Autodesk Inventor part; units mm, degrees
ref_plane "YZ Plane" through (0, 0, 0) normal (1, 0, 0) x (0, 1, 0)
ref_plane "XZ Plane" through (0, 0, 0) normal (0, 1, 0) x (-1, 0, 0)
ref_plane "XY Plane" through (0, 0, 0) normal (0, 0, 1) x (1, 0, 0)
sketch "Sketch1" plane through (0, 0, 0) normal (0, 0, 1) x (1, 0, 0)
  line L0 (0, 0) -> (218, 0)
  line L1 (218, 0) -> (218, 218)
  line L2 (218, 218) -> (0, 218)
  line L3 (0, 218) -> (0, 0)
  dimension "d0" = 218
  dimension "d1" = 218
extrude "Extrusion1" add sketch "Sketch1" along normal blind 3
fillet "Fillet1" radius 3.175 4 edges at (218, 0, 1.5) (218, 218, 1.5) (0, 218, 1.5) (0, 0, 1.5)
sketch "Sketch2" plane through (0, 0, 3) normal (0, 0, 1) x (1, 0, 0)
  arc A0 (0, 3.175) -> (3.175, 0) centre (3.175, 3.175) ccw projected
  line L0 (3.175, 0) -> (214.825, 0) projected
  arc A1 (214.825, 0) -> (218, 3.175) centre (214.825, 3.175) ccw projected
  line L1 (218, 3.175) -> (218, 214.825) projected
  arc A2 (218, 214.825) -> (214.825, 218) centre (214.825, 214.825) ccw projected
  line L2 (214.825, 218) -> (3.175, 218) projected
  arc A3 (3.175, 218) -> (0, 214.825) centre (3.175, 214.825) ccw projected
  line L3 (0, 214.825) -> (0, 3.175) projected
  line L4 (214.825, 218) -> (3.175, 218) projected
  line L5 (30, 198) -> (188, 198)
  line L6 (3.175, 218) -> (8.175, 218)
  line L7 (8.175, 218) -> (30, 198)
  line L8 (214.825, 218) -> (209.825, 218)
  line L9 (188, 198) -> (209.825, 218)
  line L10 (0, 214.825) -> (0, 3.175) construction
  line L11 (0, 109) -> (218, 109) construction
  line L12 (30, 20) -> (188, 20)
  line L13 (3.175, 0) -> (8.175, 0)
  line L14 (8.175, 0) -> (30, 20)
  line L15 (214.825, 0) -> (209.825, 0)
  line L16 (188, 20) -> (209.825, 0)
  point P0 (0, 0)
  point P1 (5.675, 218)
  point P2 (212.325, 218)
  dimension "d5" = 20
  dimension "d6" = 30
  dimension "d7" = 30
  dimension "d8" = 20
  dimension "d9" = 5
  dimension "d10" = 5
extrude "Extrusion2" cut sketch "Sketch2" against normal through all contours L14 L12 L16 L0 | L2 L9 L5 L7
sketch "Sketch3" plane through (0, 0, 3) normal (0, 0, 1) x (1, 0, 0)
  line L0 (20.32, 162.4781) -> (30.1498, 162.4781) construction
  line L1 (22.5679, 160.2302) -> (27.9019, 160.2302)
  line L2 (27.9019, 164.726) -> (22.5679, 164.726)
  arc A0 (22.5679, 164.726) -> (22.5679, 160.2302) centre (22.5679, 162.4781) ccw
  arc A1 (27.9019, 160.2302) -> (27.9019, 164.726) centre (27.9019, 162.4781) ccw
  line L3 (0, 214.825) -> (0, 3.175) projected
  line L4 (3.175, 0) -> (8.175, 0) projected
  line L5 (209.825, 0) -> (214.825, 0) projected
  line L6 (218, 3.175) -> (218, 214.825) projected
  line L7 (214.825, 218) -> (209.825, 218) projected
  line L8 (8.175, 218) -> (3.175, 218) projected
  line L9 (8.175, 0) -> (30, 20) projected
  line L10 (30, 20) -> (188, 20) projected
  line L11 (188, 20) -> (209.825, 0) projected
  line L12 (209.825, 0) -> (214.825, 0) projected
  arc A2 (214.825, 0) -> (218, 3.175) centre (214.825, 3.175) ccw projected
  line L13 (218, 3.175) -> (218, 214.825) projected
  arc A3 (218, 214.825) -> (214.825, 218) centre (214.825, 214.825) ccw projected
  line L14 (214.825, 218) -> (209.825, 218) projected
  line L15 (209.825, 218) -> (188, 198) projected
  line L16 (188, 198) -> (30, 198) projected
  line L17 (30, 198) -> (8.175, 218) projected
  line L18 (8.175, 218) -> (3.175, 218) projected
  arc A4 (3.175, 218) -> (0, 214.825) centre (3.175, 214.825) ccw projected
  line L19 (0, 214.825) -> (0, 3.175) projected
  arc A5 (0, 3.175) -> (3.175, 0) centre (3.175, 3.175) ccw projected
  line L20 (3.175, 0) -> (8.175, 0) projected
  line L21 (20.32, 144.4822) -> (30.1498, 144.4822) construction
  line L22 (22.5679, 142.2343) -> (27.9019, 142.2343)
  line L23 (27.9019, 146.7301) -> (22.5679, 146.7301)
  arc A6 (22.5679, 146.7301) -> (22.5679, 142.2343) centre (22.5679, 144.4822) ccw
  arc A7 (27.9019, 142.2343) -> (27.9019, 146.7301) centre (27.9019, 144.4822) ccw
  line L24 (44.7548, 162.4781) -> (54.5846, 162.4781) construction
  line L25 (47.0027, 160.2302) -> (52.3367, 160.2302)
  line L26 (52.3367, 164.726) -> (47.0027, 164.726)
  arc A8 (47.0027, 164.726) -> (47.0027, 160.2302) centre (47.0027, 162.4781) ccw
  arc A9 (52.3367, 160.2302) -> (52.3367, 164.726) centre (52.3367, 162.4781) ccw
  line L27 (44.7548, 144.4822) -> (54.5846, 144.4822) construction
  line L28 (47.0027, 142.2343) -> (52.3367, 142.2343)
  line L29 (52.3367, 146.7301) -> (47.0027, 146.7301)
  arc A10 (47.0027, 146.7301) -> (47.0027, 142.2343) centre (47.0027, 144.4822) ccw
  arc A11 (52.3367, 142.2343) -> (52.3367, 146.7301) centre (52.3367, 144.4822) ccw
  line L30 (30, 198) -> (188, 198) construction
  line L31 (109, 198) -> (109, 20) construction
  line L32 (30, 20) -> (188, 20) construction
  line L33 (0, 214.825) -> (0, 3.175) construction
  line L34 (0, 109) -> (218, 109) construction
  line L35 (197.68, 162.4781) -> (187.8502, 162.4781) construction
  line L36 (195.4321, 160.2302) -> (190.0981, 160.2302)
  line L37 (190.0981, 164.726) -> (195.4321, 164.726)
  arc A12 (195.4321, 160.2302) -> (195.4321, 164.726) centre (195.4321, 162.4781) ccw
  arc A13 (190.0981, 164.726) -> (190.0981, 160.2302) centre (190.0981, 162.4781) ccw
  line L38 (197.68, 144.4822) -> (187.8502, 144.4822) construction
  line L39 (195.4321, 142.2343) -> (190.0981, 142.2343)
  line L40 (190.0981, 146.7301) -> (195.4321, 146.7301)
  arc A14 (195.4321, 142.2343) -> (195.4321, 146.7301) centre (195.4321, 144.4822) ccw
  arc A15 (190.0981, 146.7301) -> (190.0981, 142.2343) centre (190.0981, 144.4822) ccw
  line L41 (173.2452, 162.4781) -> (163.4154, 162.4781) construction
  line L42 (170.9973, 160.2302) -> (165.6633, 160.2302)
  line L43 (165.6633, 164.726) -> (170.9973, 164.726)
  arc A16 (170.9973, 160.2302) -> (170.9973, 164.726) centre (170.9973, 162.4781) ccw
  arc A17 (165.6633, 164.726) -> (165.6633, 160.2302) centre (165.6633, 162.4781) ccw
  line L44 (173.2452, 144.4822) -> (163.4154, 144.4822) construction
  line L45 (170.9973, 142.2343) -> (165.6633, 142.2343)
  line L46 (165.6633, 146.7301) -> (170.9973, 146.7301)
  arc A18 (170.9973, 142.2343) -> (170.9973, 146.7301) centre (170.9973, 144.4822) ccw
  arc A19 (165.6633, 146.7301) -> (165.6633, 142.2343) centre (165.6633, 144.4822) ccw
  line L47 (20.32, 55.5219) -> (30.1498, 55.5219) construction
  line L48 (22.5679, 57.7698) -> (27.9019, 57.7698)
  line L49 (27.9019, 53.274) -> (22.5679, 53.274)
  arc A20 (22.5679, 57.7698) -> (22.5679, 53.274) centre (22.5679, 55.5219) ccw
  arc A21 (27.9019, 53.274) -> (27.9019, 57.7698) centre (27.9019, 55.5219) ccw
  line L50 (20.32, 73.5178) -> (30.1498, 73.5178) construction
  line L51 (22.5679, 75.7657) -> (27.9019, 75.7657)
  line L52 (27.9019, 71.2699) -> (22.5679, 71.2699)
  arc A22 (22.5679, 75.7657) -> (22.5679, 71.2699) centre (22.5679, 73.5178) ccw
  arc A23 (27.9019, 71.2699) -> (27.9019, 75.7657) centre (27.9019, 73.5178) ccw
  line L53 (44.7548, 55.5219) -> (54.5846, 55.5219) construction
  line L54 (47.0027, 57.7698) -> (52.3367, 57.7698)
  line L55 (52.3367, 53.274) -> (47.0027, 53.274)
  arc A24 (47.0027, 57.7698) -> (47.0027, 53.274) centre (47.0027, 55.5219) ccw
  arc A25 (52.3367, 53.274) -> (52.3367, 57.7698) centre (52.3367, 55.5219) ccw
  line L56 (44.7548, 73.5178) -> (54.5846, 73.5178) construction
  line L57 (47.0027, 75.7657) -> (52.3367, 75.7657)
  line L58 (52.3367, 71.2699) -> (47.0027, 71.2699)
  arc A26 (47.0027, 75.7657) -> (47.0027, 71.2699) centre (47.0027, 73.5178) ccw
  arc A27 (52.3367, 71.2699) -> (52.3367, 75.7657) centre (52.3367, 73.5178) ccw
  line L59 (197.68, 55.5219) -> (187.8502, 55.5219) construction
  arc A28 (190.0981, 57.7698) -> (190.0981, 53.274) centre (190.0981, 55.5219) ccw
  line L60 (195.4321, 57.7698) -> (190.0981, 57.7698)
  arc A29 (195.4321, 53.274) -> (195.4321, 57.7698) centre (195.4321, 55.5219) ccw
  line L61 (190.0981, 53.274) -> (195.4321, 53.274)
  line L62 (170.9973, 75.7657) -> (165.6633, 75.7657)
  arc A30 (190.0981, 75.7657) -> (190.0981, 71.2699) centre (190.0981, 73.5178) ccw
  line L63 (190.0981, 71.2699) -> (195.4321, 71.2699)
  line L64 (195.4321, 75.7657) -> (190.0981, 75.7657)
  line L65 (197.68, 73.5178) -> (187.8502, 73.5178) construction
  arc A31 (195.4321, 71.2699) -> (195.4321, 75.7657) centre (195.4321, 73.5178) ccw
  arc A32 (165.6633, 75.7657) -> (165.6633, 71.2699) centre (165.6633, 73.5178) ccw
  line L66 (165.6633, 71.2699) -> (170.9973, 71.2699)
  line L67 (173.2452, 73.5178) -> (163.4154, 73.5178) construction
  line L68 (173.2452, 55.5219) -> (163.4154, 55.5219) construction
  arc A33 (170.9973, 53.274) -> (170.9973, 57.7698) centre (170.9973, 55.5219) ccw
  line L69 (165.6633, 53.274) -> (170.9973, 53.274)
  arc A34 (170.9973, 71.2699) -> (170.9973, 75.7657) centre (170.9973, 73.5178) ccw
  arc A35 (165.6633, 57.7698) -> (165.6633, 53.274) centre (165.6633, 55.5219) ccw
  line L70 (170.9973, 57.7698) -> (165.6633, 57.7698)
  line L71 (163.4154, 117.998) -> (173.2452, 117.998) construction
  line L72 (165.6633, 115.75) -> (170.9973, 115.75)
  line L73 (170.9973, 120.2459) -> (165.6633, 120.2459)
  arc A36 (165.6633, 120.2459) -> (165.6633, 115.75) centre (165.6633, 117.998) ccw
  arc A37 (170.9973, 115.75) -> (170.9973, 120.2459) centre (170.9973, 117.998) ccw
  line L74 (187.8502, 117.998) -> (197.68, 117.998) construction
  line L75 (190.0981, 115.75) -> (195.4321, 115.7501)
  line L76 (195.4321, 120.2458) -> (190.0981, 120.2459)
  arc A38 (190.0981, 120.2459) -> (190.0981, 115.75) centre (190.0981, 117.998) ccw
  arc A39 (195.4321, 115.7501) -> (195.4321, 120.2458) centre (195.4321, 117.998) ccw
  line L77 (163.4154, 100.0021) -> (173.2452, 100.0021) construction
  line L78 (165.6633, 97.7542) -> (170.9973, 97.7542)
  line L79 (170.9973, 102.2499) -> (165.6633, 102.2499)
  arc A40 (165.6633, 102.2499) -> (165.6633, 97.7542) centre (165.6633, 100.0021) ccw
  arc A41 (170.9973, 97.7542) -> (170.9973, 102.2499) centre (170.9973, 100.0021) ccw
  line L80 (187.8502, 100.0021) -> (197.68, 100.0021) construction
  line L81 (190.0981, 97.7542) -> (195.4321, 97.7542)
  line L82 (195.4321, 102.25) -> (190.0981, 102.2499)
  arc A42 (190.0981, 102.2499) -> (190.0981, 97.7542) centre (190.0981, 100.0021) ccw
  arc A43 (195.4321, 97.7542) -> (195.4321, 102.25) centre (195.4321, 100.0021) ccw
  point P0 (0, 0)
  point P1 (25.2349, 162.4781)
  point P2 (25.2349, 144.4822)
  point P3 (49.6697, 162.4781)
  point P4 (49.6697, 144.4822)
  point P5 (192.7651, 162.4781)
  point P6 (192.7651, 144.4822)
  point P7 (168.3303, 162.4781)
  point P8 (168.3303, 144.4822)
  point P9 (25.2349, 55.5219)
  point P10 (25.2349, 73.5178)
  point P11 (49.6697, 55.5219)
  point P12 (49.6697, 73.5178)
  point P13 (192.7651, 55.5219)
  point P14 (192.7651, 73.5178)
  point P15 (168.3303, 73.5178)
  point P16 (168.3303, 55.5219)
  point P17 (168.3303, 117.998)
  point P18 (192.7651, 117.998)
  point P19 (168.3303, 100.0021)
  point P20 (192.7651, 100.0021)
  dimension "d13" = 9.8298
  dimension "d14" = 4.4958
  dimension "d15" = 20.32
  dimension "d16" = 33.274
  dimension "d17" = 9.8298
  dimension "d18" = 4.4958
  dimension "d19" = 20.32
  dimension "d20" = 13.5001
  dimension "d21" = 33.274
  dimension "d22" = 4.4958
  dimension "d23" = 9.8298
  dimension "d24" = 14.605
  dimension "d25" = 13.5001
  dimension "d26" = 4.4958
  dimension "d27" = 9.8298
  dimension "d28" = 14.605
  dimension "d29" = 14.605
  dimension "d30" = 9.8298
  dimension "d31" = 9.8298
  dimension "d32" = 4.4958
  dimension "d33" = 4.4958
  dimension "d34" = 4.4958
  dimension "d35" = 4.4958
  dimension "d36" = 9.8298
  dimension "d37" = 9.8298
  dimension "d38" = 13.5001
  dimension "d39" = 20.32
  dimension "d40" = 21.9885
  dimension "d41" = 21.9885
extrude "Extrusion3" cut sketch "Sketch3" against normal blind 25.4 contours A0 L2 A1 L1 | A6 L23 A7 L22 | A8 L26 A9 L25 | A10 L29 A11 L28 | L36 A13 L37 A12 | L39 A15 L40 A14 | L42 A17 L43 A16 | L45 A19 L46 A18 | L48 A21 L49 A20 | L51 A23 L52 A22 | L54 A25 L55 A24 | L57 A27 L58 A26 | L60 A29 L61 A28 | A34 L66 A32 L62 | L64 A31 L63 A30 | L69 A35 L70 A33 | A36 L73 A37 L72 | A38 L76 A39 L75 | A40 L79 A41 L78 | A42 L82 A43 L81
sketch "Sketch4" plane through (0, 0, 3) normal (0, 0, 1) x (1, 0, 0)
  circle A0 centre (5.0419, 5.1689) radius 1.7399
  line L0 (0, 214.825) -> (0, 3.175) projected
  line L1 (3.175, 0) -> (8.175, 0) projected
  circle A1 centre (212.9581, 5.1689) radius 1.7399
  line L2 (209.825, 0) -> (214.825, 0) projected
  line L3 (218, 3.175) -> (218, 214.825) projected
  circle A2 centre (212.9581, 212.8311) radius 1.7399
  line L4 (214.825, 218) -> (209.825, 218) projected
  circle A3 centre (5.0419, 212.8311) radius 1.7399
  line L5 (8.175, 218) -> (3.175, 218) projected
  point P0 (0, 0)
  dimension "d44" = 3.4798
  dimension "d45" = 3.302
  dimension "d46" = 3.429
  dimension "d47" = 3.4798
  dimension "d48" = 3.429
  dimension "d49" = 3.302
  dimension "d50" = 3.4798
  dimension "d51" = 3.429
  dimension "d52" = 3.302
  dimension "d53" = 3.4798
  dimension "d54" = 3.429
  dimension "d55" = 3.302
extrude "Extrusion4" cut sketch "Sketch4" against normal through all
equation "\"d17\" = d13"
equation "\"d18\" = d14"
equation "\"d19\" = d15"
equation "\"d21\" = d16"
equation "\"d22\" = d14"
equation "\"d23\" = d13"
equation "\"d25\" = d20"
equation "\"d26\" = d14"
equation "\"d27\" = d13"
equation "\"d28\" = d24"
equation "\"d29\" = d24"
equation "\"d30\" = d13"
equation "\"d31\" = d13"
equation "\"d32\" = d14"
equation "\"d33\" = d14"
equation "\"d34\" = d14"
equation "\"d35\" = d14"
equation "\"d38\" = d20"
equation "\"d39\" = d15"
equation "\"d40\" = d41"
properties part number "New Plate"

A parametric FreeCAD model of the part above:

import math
import FreeCAD as App
import Part
import Sketcher
from FreeCAD import Vector
Q = App.Units.Quantity


def edges_at(feature, points):
    """Names of the edges that pass closest to the given points."""
    edges = feature.Shape.Edges
    near = lambda p: min(range(len(edges)), key=lambda i: edges[i].distToShape(Part.Vertex(*p))[0])
    return sorted({f"Edge{near(p) + 1}" for p in points})

doc = App.newDocument("Part")
params = doc.addObject("Spreadsheet::Sheet", "Params")
for row, (alias, value) in enumerate([
    ("pad1_length", "0.1181102 in"),
    ("fillet_radius", "0.125 in"),
    ("sketch3_width", "0.21 in"),
    ("pocket2_length", "1 in"),
    ("sketch4_diameter", "0.137 in"),
], start=1):
    params.set(f"A{row}", alias)
    params.set(f"B{row}", "=" + value)
    params.setAlias(f"B{row}", alias)

body = doc.addObject("PartDesign::Body", "Body")

sketch1 = body.newObject("Sketcher::SketchObject", "Sketch")
sketch1.AttachmentSupport = (doc.getObject("XY_Plane"), [""])
sketch1.MapMode = "FlatFace"
sketch1.addGeometry(Part.LineSegment(Vector(0, 218, 0), Vector(0, 0, 0)), False)
sketch1.addGeometry(Part.LineSegment(Vector(0, 0, 0), Vector(218, 0, 0)), False)
sketch1.addGeometry(Part.LineSegment(Vector(218, 0, 0), Vector(218, 218, 0)), False)
sketch1.addGeometry(Part.LineSegment(Vector(218, 218, 0), Vector(0, 218, 0)), False)
sketch1.addConstraint(Sketcher.Constraint("Coincident", 0, 2, 1, 1))
sketch1.addConstraint(Sketcher.Constraint("Coincident", 1, 2, 2, 1))
sketch1.addConstraint(Sketcher.Constraint("Coincident", 2, 2, 3, 1))
sketch1.addConstraint(Sketcher.Constraint("Coincident", 3, 2, 0, 1))
sketch1.addConstraint(Sketcher.Constraint("Vertical", 0))
sketch1.addConstraint(Sketcher.Constraint("Horizontal", 1))
sketch1.addConstraint(Sketcher.Constraint("Vertical", 2))
sketch1.addConstraint(Sketcher.Constraint("Horizontal", 3))
sketch1.addConstraint(Sketcher.Constraint("Coincident", 0, 2, -1, 1))
sketch1.addConstraint(Sketcher.Constraint("Equal", 3, 0))
sketch1.addConstraint(Sketcher.Constraint("DistanceX", 1, 1, 1, 2, 218.0))
pad1 = body.newObject("PartDesign::Pad", "Pad")
pad1.Profile = sketch1
pad1.setExpression("Length", "Params.pad1_length")
doc.recompute()

fillet = body.newObject("PartDesign::Fillet", "Fillet")
fillet.Base = (pad1, edges_at(pad1, [
    (218, 0, 1.5),
    (218, 218, 1.5),
    (0, 218, 1.5),
    (0, 0, 1.5),
]))
fillet.setExpression("Radius", "Params.fillet_radius")

sketch2 = body.newObject("Sketcher::SketchObject", "Sketch001")
sketch2.AttachmentSupport = (doc.getObject("XY_Plane"), [""])
sketch2.MapMode = "FlatFace"
sketch2.AttachmentOffset = App.Placement(Vector(0, 0, 0.1181102 * 25.4), App.Rotation())
sketch2.addGeometry(Part.LineSegment(Vector(30, 20, 0), Vector(8.175, 0, 0)), False)
sketch2.addGeometry(Part.LineSegment(Vector(8.175, 0, 0), Vector(209.825, 0, 0)), False)
sketch2.addGeometry(Part.LineSegment(Vector(209.825, 0, 0), Vector(188, 20, 0)), False)
sketch2.addGeometry(Part.LineSegment(Vector(188, 20, 0), Vector(30, 20, 0)), False)
sketch2.addGeometry(Part.LineSegment(Vector(209.825, 218, 0), Vector(8.175, 218, 0)), False)
sketch2.addGeometry(Part.LineSegment(Vector(8.175, 218, 0), Vector(30, 198, 0)), False)
sketch2.addGeometry(Part.LineSegment(Vector(30, 198, 0), Vector(188, 198, 0)), False)
sketch2.addGeometry(Part.LineSegment(Vector(188, 198, 0), Vector(209.825, 218, 0)), False)
sketch2.addConstraint(Sketcher.Constraint("Coincident", 0, 2, 1, 1))
sketch2.addConstraint(Sketcher.Constraint("Coincident", 1, 2, 2, 1))
sketch2.addConstraint(Sketcher.Constraint("Coincident", 2, 2, 3, 1))
sketch2.addConstraint(Sketcher.Constraint("Coincident", 3, 2, 0, 1))
sketch2.addConstraint(Sketcher.Constraint("Coincident", 4, 2, 5, 1))
sketch2.addConstraint(Sketcher.Constraint("Coincident", 5, 2, 6, 1))
sketch2.addConstraint(Sketcher.Constraint("Coincident", 6, 2, 7, 1))
sketch2.addConstraint(Sketcher.Constraint("Coincident", 7, 2, 4, 1))
sketch2.addConstraint(Sketcher.Constraint("Horizontal", 1))
sketch2.addConstraint(Sketcher.Constraint("Horizontal", 3))
sketch2.addConstraint(Sketcher.Constraint("Horizontal", 4))
sketch2.addConstraint(Sketcher.Constraint("Horizontal", 6))
sketch2.addConstraint(Sketcher.Constraint("PointOnObject", 0, 2, -1))
sketch2.addConstraint(Sketcher.Constraint("Parallel", 2, 5))
sketch2.addConstraint(Sketcher.Constraint("Parallel", 0, 7))
sketch2.addConstraint(Sketcher.Constraint("Vertical", 0, 2, 4, 2))
sketch2.addConstraint(Sketcher.Constraint("Vertical", 3, 2, 5, 2))
sketch2.addConstraint(Sketcher.Constraint("Vertical", 2, 2, 6, 2))
sketch2.addConstraint(Sketcher.Constraint("Vertical", 1, 2, 7, 2))
sketch2.addConstraint(Sketcher.Constraint("DistanceY", -1, 1, 2, 2, Q("0.7874 in")))
sketch2.addConstraint(Sketcher.Constraint("DistanceX", -1, 1, 3, 2, Q("1.1811 in")))
sketch2.addConstraint(Sketcher.Constraint("DistanceX", 1, 1, 1, 2, 201.65))
sketch2.addConstraint(Sketcher.Constraint("DistanceX", 3, 2, 3, 1, 158.0))
sketch2.addConstraint(Sketcher.Constraint("DistanceY", -1, 1, 4, 2, 218.0))
pocket1 = body.newObject("PartDesign::Pocket", "Pocket")
pocket1.Profile = sketch2
pocket1.Type = "ThroughAll"

sketch3 = body.newObject("Sketcher::SketchObject", "Sketch002")
sketch3.AttachmentSupport = (doc.getObject("XY_Plane"), [""])
sketch3.MapMode = "FlatFace"
sketch3.AttachmentOffset = App.Placement(Vector(0, 0, 0.1181102 * 25.4), App.Rotation())
sketch3.addGeometry(Part.ArcOfCircle(Part.Circle(Vector(22.5679, 162.4781, 0), Vector(0, 0, 1), 2.2479), math.radians(90), math.radians(270)), False)
sketch3.addGeometry(Part.LineSegment(Vector(22.5679, 160.2302, 0), Vector(27.9019, 160.2302, 0)), False)
sketch3.addGeometry(Part.ArcOfCircle(Part.Circle(Vector(27.9019, 162.4781, 0), Vector(0, 0, 1), 2.2479), math.radians(-90), math.radians(90)), False)
sketch3.addGeometry(Part.LineSegment(Vector(27.9019, 164.726, 0), Vector(22.5679, 164.726, 0)), False)
sketch3.addGeometry(Part.ArcOfCircle(Part.Circle(Vector(22.5679, 144.4822, 0), Vector(0, 0, 1), 2.2479), math.radians(90), math.radians(270)), False)
sketch3.addGeometry(Part.LineSegment(Vector(22.5679, 142.2343, 0), Vector(27.9019, 142.2343, 0)), False)
sketch3.addGeometry(Part.ArcOfCircle(Part.Circle(Vector(27.9019, 144.4822, 0), Vector(0, 0, 1), 2.2479), math.radians(-90), math.radians(90)), False)
sketch3.addGeometry(Part.LineSegment(Vector(27.9019, 146.7301, 0), Vector(22.5679, 146.7301, 0)), False)
sketch3.addGeometry(Part.ArcOfCircle(Part.Circle(Vector(47.0027, 162.4781, 0), Vector(0, 0, 1), 2.2479), math.radians(90), math.radians(270)), False)
sketch3.addGeometry(Part.LineSegment(Vector(47.0027, 160.2302, 0), Vector(52.3367, 160.2302, 0)), False)
sketch3.addGeometry(Part.ArcOfCircle(Part.Circle(Vector(52.3367, 162.4781, 0), Vector(0, 0, 1), 2.2479), math.radians(-90), math.radians(90)), False)
sketch3.addGeometry(Part.LineSegment(Vector(52.3367, 164.726, 0), Vector(47.0027, 164.726, 0)), False)
sketch3.addGeometry(Part.ArcOfCircle(Part.Circle(Vector(47.0027, 144.4822, 0), Vector(0, 0, 1), 2.2479), math.radians(90), math.radians(270)), False)
sketch3.addGeometry(Part.LineSegment(Vector(47.0027, 142.2343, 0), Vector(52.3367, 142.2343, 0)), False)
sketch3.addGeometry(Part.ArcOfCircle(Part.Circle(Vector(52.3367, 144.4822, 0), Vector(0, 0, 1), 2.2479), math.radians(-90), math.radians(90)), False)
sketch3.addGeometry(Part.LineSegment(Vector(52.3367, 146.7301, 0), Vector(47.0027, 146.7301, 0)), False)
sketch3.addGeometry(Part.LineSegment(Vector(190.0981, 160.2302, 0), Vector(195.4321, 160.2302, 0)), False)
sketch3.addGeometry(Part.ArcOfCircle(Part.Circle(Vector(195.4321, 162.4781, 0), Vector(0, 0, 1), 2.2479), math.radians(-90), math.radians(90)), False)
sketch3.addGeometry(Part.LineSegment(Vector(195.4321, 164.726, 0), Vector(190.0981, 164.726, 0)), False)
sketch3.addGeometry(Part.ArcOfCircle(Part.Circle(Vector(190.0981, 162.4781, 0), Vector(0, 0, 1), 2.2479), math.radians(90), math.radians(270)), False)
sketch3.addGeometry(Part.LineSegment(Vector(190.0981, 142.2343, 0), Vector(195.4321, 142.2343, 0)), False)
sketch3.addGeometry(Part.ArcOfCircle(Part.Circle(Vector(195.4321, 144.4822, 0), Vector(0, 0, 1), 2.2479), math.radians(-90), math.radians(90)), False)
sketch3.addGeometry(Part.LineSegment(Vector(195.4321, 146.7301, 0), Vector(190.0981, 146.7301, 0)), False)
sketch3.addGeometry(Part.ArcOfCircle(Part.Circle(Vector(190.0981, 144.4822, 0), Vector(0, 0, 1), 2.2479), math.radians(90), math.radians(270)), False)
sketch3.addGeometry(Part.LineSegment(Vector(165.6633, 160.2302, 0), Vector(170.9973, 160.2302, 0)), False)
sketch3.addGeometry(Part.ArcOfCircle(Part.Circle(Vector(170.9973, 162.4781, 0), Vector(0, 0, 1), 2.2479), math.radians(-90), math.radians(90)), False)
sketch3.addGeometry(Part.LineSegment(Vector(170.9973, 164.726, 0), Vector(165.6633, 164.726, 0)), False)
sketch3.addGeometry(Part.ArcOfCircle(Part.Circle(Vector(165.6633, 162.4781, 0), Vector(0, 0, 1), 2.2479), math.radians(90), math.radians(270)), False)
sketch3.addGeometry(Part.LineSegment(Vector(165.6633, 142.2343, 0), Vector(170.9973, 142.2343, 0)), False)
sketch3.addGeometry(Part.ArcOfCircle(Part.Circle(Vector(170.9973, 144.4822, 0), Vector(0, 0, 1), 2.2479), math.radians(-90), math.radians(90)), False)
sketch3.addGeometry(Part.LineSegment(Vector(170.9973, 146.7301, 0), Vector(165.6633, 146.7301, 0)), False)
sketch3.addGeometry(Part.ArcOfCircle(Part.Circle(Vector(165.6633, 144.4822, 0), Vector(0, 0, 1), 2.2479), math.radians(90), math.radians(270)), False)
sketch3.addGeometry(Part.LineSegment(Vector(27.9019, 57.7698, 0), Vector(22.5679, 57.7698, 0)), False)
sketch3.addGeometry(Part.ArcOfCircle(Part.Circle(Vector(22.5679, 55.5219, 0), Vector(0, 0, 1), 2.2479), math.radians(90), math.radians(270)), False)
sketch3.addGeometry(Part.LineSegment(Vector(22.5679, 53.274, 0), Vector(27.9019, 53.274, 0)), False)
sketch3.addGeometry(Part.ArcOfCircle(Part.Circle(Vector(27.9019, 55.5219, 0), Vector(0, 0, 1), 2.2479), math.radians(-90), math.radians(90)), False)
sketch3.addGeometry(Part.LineSegment(Vector(27.9019, 75.7657, 0), Vector(22.5679, 75.7657, 0)), False)
sketch3.addGeometry(Part.ArcOfCircle(Part.Circle(Vector(22.5679, 73.5178, 0), Vector(0, 0, 1), 2.2479), math.radians(90), math.radians(270)), False)
sketch3.addGeometry(Part.LineSegment(Vector(22.5679, 71.2699, 0), Vector(27.9019, 71.2699, 0)), False)
sketch3.addGeometry(Part.ArcOfCircle(Part.Circle(Vector(27.9019, 73.5178, 0), Vector(0, 0, 1), 2.2479), math.radians(-90), math.radians(90)), False)
sketch3.addGeometry(Part.LineSegment(Vector(52.3367, 57.7698, 0), Vector(47.0027, 57.7698, 0)), False)
sketch3.addGeometry(Part.ArcOfCircle(Part.Circle(Vector(47.0027, 55.5219, 0), Vector(0, 0, 1), 2.2479), math.radians(90), math.radians(270)), False)
sketch3.addGeometry(Part.LineSegment(Vector(47.0027, 53.274, 0), Vector(52.3367, 53.274, 0)), False)
sketch3.addGeometry(Part.ArcOfCircle(Part.Circle(Vector(52.3367, 55.5219, 0), Vector(0, 0, 1), 2.2479), math.radians(-90), math.radians(90)), False)
sketch3.addGeometry(Part.LineSegment(Vector(52.3367, 75.7657, 0), Vector(47.0027, 75.7657, 0)), False)
sketch3.addGeometry(Part.ArcOfCircle(Part.Circle(Vector(47.0027, 73.5178, 0), Vector(0, 0, 1), 2.2479), math.radians(90), math.radians(270)), False)
sketch3.addGeometry(Part.LineSegment(Vector(47.0027, 71.2699, 0), Vector(52.3367, 71.2699, 0)), False)
sketch3.addGeometry(Part.ArcOfCircle(Part.Circle(Vector(52.3367, 73.5178, 0), Vector(0, 0, 1), 2.2479), math.radians(-90), math.radians(90)), False)
sketch3.addGeometry(Part.LineSegment(Vector(195.4321, 57.7698, 0), Vector(190.0981, 57.7698, 0)), False)
sketch3.addGeometry(Part.ArcOfCircle(Part.Circle(Vector(190.0981, 55.5219, 0), Vector(0, 0, 1), 2.2479), math.radians(90), math.radians(270)), False)
sketch3.addGeometry(Part.LineSegment(Vector(190.0981, 53.274, 0), Vector(195.4321, 53.274, 0)), False)
sketch3.addGeometry(Part.ArcOfCircle(Part.Circle(Vector(195.4321, 55.5219, 0), Vector(0, 0, 1), 2.2479), math.radians(-90), math.radians(90)), False)
sketch3.addGeometry(Part.ArcOfCircle(Part.Circle(Vector(170.9973, 73.5178, 0), Vector(0, 0, 1), 2.2479), math.radians(-90), math.radians(90)), False)
sketch3.addGeometry(Part.LineSegment(Vector(170.9973, 75.7657, 0), Vector(165.6633, 75.7657, 0)), False)
sketch3.addGeometry(Part.ArcOfCircle(Part.Circle(Vector(165.6633, 73.5178, 0), Vector(0, 0, 1), 2.2479), math.radians(90), math.radians(270)), False)
sketch3.addGeometry(Part.LineSegment(Vector(165.6633, 71.2699, 0), Vector(170.9973, 71.2699, 0)), False)
sketch3.addGeometry(Part.LineSegment(Vector(195.4321, 75.7657, 0), Vector(190.0981, 75.7657, 0)), False)
sketch3.addGeometry(Part.ArcOfCircle(Part.Circle(Vector(190.0981, 73.5178, 0), Vector(0, 0, 1), 2.2479), math.radians(90), math.radians(270)), False)
sketch3.addGeometry(Part.LineSegment(Vector(190.0981, 71.2699, 0), Vector(195.4321, 71.2699, 0)), False)
sketch3.addGeometry(Part.ArcOfCircle(Part.Circle(Vector(195.4321, 73.5178, 0), Vector(0, 0, 1), 2.2479), math.radians(-90), math.radians(90)), False)
sketch3.addGeometry(Part.LineSegment(Vector(165.6633, 53.274, 0), Vector(170.9973, 53.274, 0)), False)
sketch3.addGeometry(Part.ArcOfCircle(Part.Circle(Vector(170.9973, 55.5219, 0), Vector(0, 0, 1), 2.2479), math.radians(-90), math.radians(90)), False)
sketch3.addGeometry(Part.LineSegment(Vector(170.9973, 57.7698, 0), Vector(165.6633, 57.7698, 0)), False)
sketch3.addGeometry(Part.ArcOfCircle(Part.Circle(Vector(165.6633, 55.5219, 0), Vector(0, 0, 1), 2.2479), math.radians(90), math.radians(270)), False)
sketch3.addGeometry(Part.ArcOfCircle(Part.Circle(Vector(165.6633, 117.998, 0), Vector(0, 0, 1), 2.2479), math.radians(90), math.radians(270)), False)
sketch3.addGeometry(Part.LineSegment(Vector(165.6633, 115.75, 0), Vector(170.9973, 115.75, 0)), False)
sketch3.addGeometry(Part.ArcOfCircle(Part.Circle(Vector(170.9973, 117.998, 0), Vector(0, 0, 1), 2.248), math.radians(-90), math.radians(90)), False)
sketch3.addGeometry(Part.LineSegment(Vector(170.9973, 120.2459, 0), Vector(165.6633, 120.2459, 0)), False)
sketch3.addGeometry(Part.ArcOfCircle(Part.Circle(Vector(190.0981, 117.998, 0), Vector(0, 0, 1), 2.2479), math.radians(90), math.radians(270)), False)
sketch3.addGeometry(Part.LineSegment(Vector(190.0981, 115.75, 0), Vector(195.4321, 115.7501, 0)), False)
sketch3.addGeometry(Part.ArcOfCircle(Part.Circle(Vector(195.4321, 117.998, 0), Vector(0, 0, 1), 2.2479), math.radians(-90), math.radians(90)), False)
sketch3.addGeometry(Part.LineSegment(Vector(195.4321, 120.2458, 0), Vector(190.0981, 120.2459, 0)), False)
sketch3.addGeometry(Part.ArcOfCircle(Part.Circle(Vector(165.6633, 100.0021, 0), Vector(0, 0, 1), 2.2478), math.radians(90), math.radians(270)), False)
sketch3.addGeometry(Part.LineSegment(Vector(165.6633, 97.7542, 0), Vector(170.9973, 97.7542, 0)), False)
sketch3.addGeometry(Part.ArcOfCircle(Part.Circle(Vector(170.9973, 100.0021, 0), Vector(0, 0, 1), 2.2479), math.radians(-90), math.radians(90)), False)
sketch3.addGeometry(Part.LineSegment(Vector(170.9973, 102.2499, 0), Vector(165.6633, 102.2499, 0)), False)
sketch3.addGeometry(Part.ArcOfCircle(Part.Circle(Vector(190.0981, 100.0021, 0), Vector(0, 0, 1), 2.2478), math.radians(90), math.radians(270)), False)
sketch3.addGeometry(Part.LineSegment(Vector(190.0981, 97.7542, 0), Vector(195.4321, 97.7542, 0)), False)
sketch3.addGeometry(Part.ArcOfCircle(Part.Circle(Vector(195.4321, 100.0021, 0), Vector(0, 0, 1), 2.2479), math.radians(-90), math.radians(90)), False)
sketch3.addGeometry(Part.LineSegment(Vector(195.4321, 102.25, 0), Vector(190.0981, 102.2499, 0)), False)
sketch3.addConstraint(Sketcher.Constraint("Tangent", 0, 2, 1, 1))
sketch3.addConstraint(Sketcher.Constraint("Tangent", 1, 2, 2, 1))
sketch3.addConstraint(Sketcher.Constraint("Tangent", 2, 2, 3, 1))
sketch3.addConstraint(Sketcher.Constraint("Tangent", 3, 2, 0, 1))
sketch3.addConstraint(Sketcher.Constraint("Tangent", 4, 2, 5, 1))
sketch3.addConstraint(Sketcher.Constraint("Tangent", 5, 2, 6, 1))
sketch3.addConstraint(Sketcher.Constraint("Tangent", 6, 2, 7, 1))
sketch3.addConstraint(Sketcher.Constraint("Tangent", 7, 2, 4, 1))
sketch3.addConstraint(Sketcher.Constraint("Tangent", 8, 2, 9, 1))
sketch3.addConstraint(Sketcher.Constraint("Tangent", 9, 2, 10, 1))
sketch3.addConstraint(Sketcher.Constraint("Tangent", 10, 2, 11, 1))
sketch3.addConstraint(Sketcher.Constraint("Tangent", 11, 2, 8, 1))
sketch3.addConstraint(Sketcher.Constraint("Tangent", 12, 2, 13, 1))
sketch3.addConstraint(Sketcher.Constraint("Tangent", 13, 2, 14, 1))
sketch3.addConstraint(Sketcher.Constraint("Tangent", 14, 2, 15, 1))
sketch3.addConstraint(Sketcher.Constraint("Tangent", 15, 2, 12, 1))
sketch3.addConstraint(Sketcher.Constraint("Tangent", 16, 2, 17, 1))
sketch3.addConstraint(Sketcher.Constraint("Tangent", 17, 2, 18, 1))
sketch3.addConstraint(Sketcher.Constraint("Tangent", 18, 2, 19, 1))
sketch3.addConstraint(Sketcher.Constraint("Tangent", 19, 2, 16, 1))
sketch3.addConstraint(Sketcher.Constraint("Tangent", 20, 2, 21, 1))
sketch3.addConstraint(Sketcher.Constraint("Tangent", 21, 2, 22, 1))
sketch3.addConstraint(Sketcher.Constraint("Tangent", 22, 2, 23, 1))
sketch3.addConstraint(Sketcher.Constraint("Tangent", 23, 2, 20, 1))
sketch3.addConstraint(Sketcher.Constraint("Tangent", 24, 2, 25, 1))
sketch3.addConstraint(Sketcher.Constraint("Tangent", 25, 2, 26, 1))
sketch3.addConstraint(Sketcher.Constraint("Tangent", 26, 2, 27, 1))
sketch3.addConstraint(Sketcher.Constraint("Tangent", 27, 2, 24, 1))
sketch3.addConstraint(Sketcher.Constraint("Tangent", 28, 2, 29, 1))
sketch3.addConstraint(Sketcher.Constraint("Tangent", 29, 2, 30, 1))
sketch3.addConstraint(Sketcher.Constraint("Tangent", 30, 2, 31, 1))
sketch3.addConstraint(Sketcher.Constraint("Tangent", 31, 2, 28, 1))
sketch3.addConstraint(Sketcher.Constraint("Tangent", 32, 2, 33, 1))
sketch3.addConstraint(Sketcher.Constraint("Tangent", 33, 2, 34, 1))
sketch3.addConstraint(Sketcher.Constraint("Tangent", 34, 2, 35, 1))
sketch3.addConstraint(Sketcher.Constraint("Tangent", 35, 2, 32, 1))
sketch3.addConstraint(Sketcher.Constraint("Tangent", 36, 2, 37, 1))
sketch3.addConstraint(Sketcher.Constraint("Tangent", 37, 2, 38, 1))
sketch3.addConstraint(Sketcher.Constraint("Tangent", 38, 2, 39, 1))
sketch3.addConstraint(Sketcher.Constraint("Tangent", 39, 2, 36, 1))
sketch3.addConstraint(Sketcher.Constraint("Tangent", 40, 2, 41, 1))
sketch3.addConstraint(Sketcher.Constraint("Tangent", 41, 2, 42, 1))
sketch3.addConstraint(Sketcher.Constraint("Tangent", 42, 2, 43, 1))
sketch3.addConstraint(Sketcher.Constraint("Tangent", 43, 2, 40, 1))
sketch3.addConstraint(Sketcher.Constraint("Tangent", 44, 2, 45, 1))
sketch3.addConstraint(Sketcher.Constraint("Tangent", 45, 2, 46, 1))
sketch3.addConstraint(Sketcher.Constraint("Tangent", 46, 2, 47, 1))
sketch3.addConstraint(Sketcher.Constraint("Tangent", 47, 2, 44, 1))
sketch3.addConstraint(Sketcher.Constraint("Tangent", 48, 2, 49, 1))
sketch3.addConstraint(Sketcher.Constraint("Tangent", 49, 2, 50, 1))
sketch3.addConstraint(Sketcher.Constraint("Tangent", 50, 2, 51, 1))
sketch3.addConstraint(Sketcher.Constraint("Tangent", 51, 2, 48, 1))
sketch3.addConstraint(Sketcher.Constraint("Tangent", 52, 2, 53, 1))
sketch3.addConstraint(Sketcher.Constraint("Tangent", 53, 2, 54, 1))
sketch3.addConstraint(Sketcher.Constraint("Tangent", 54, 2, 55, 1))
sketch3.addConstraint(Sketcher.Constraint("Tangent", 55, 2, 52, 1))
sketch3.addConstraint(Sketcher.Constraint("Tangent", 56, 2, 57, 1))
sketch3.addConstraint(Sketcher.Constraint("Tangent", 57, 2, 58, 1))
sketch3.addConstraint(Sketcher.Constraint("Tangent", 58, 2, 59, 1))
sketch3.addConstraint(Sketcher.Constraint("Tangent", 59, 2, 56, 1))
sketch3.addConstraint(Sketcher.Constraint("Tangent", 60, 2, 61, 1))
sketch3.addConstraint(Sketcher.Constraint("Tangent", 61, 2, 62, 1))
sketch3.addConstraint(Sketcher.Constraint("Tangent", 62, 2, 63, 1))
sketch3.addConstraint(Sketcher.Constraint("Tangent", 63, 2, 60, 1))
sketch3.addConstraint(Sketcher.Constraint("Tangent", 64, 2, 65, 1))
sketch3.addConstraint(Sketcher.Constraint("Tangent", 65, 2, 66, 1))
sketch3.addConstraint(Sketcher.Constraint("Tangent", 66, 2, 67, 1))
sketch3.addConstraint(Sketcher.Constraint("Tangent", 67, 2, 64, 1))
sketch3.addConstraint(Sketcher.Constraint("Tangent", 68, 2, 69, 1))
sketch3.addConstraint(Sketcher.Constraint("Tangent", 69, 2, 70, 1))
sketch3.addConstraint(Sketcher.Constraint("Tangent", 70, 2, 71, 1))
sketch3.addConstraint(Sketcher.Constraint("Tangent", 71, 2, 68, 1))
sketch3.addConstraint(Sketcher.Constraint("Tangent", 72, 2, 73, 1))
sketch3.addConstraint(Sketcher.Constraint("Tangent", 73, 2, 74, 1))
sketch3.addConstraint(Sketcher.Constraint("Tangent", 74, 2, 75, 1))
sketch3.addConstraint(Sketcher.Constraint("Tangent", 75, 2, 72, 1))
sketch3.addConstraint(Sketcher.Constraint("Tangent", 76, 2, 77, 1))
sketch3.addConstraint(Sketcher.Constraint("Tangent", 77, 2, 78, 1))
sketch3.addConstraint(Sketcher.Constraint("Tangent", 78, 2, 79, 1))
sketch3.addConstraint(Sketcher.Constraint("Tangent", 79, 2, 76, 1))
sketch3.addConstraint(Sketcher.Constraint("Horizontal", 1))
sketch3.addConstraint(Sketcher.Constraint("Horizontal", 3))
sketch3.addConstraint(Sketcher.Constraint("Horizontal", 5))
sketch3.addConstraint(Sketcher.Constraint("Horizontal", 7))
sketch3.addConstraint(Sketcher.Constraint("Horizontal", 9))
sketch3.addConstraint(Sketcher.Constraint("Horizontal", 11))
sketch3.addConstraint(Sketcher.Constraint("Horizontal", 13))
sketch3.addConstraint(Sketcher.Constraint("Horizontal", 15))
sketch3.addConstraint(Sketcher.Constraint("Horizontal", 16))
sketch3.addConstraint(Sketcher.Constraint("Horizontal", 18))
sketch3.addConstraint(Sketcher.Constraint("Horizontal", 20))
sketch3.addConstraint(Sketcher.Constraint("Horizontal", 22))
sketch3.addConstraint(Sketcher.Constraint("Horizontal", 24))
sketch3.addConstraint(Sketcher.Constraint("Horizontal", 26))
sketch3.addConstraint(Sketcher.Constraint("Horizontal", 28))
sketch3.addConstraint(Sketcher.Constraint("Horizontal", 30))
sketch3.addConstraint(Sketcher.Constraint("Horizontal", 32))
sketch3.addConstraint(Sketcher.Constraint("Horizontal", 34))
sketch3.addConstraint(Sketcher.Constraint("Horizontal", 36))
sketch3.addConstraint(Sketcher.Constraint("Horizontal", 38))
sketch3.addConstraint(Sketcher.Constraint("Horizontal", 40))
sketch3.addConstraint(Sketcher.Constraint("Horizontal", 42))
sketch3.addConstraint(Sketcher.Constraint("Horizontal", 44))
sketch3.addConstraint(Sketcher.Constraint("Horizontal", 46))
sketch3.addConstraint(Sketcher.Constraint("Horizontal", 48))
sketch3.addConstraint(Sketcher.Constraint("Horizontal", 50))
sketch3.addConstraint(Sketcher.Constraint("Horizontal", 53))
sketch3.addConstraint(Sketcher.Constraint("Horizontal", 55))
sketch3.addConstraint(Sketcher.Constraint("Horizontal", 56))
sketch3.addConstraint(Sketcher.Constraint("Horizontal", 58))
sketch3.addConstraint(Sketcher.Constraint("Horizontal", 60))
sketch3.addConstraint(Sketcher.Constraint("Horizontal", 62))
sketch3.addConstraint(Sketcher.Constraint("Horizontal", 65))
sketch3.addConstraint(Sketcher.Constraint("Horizontal", 67))
sketch3.addConstraint(Sketcher.Constraint("Horizontal", 69))
sketch3.addConstraint(Sketcher.Constraint("Horizontal", 71))
sketch3.addConstraint(Sketcher.Constraint("Horizontal", 73))
sketch3.addConstraint(Sketcher.Constraint("Horizontal", 75))
sketch3.addConstraint(Sketcher.Constraint("Horizontal", 77))
sketch3.addConstraint(Sketcher.Constraint("Horizontal", 79))
sketch3.addConstraint(Sketcher.Constraint("Equal", 2, 4))
sketch3.addConstraint(Sketcher.Constraint("Equal", 6, 8))
sketch3.addConstraint(Sketcher.Constraint("Equal", 10, 12))
sketch3.addConstraint(Sketcher.Constraint("Equal", 14, 17))
sketch3.addConstraint(Sketcher.Constraint("Equal", 19, 21))
sketch3.addConstraint(Sketcher.Constraint("Equal", 23, 25))
sketch3.addConstraint(Sketcher.Constraint("Equal", 27, 29))
sketch3.addConstraint(Sketcher.Constraint("Equal", 31, 33))
sketch3.addConstraint(Sketcher.Constraint("Equal", 35, 37))
sketch3.addConstraint(Sketcher.Constraint("Equal", 39, 41))
sketch3.addConstraint(Sketcher.Constraint("Equal", 43, 45))
sketch3.addConstraint(Sketcher.Constraint("Equal", 47, 49))
sketch3.addConstraint(Sketcher.Constraint("Equal", 51, 52))
sketch3.addConstraint(Sketcher.Constraint("Equal", 54, 57))
sketch3.addConstraint(Sketcher.Constraint("Equal", 59, 61))
sketch3.addConstraint(Sketcher.Constraint("Equal", 63, 64))
sketch3.addConstraint(Sketcher.Constraint("Equal", 66, 68))
sketch3.addConstraint(Sketcher.Constraint("Equal", 70, 72))
sketch3.addConstraint(Sketcher.Constraint("Equal", 74, 76))
sketch3.addConstraint(Sketcher.Constraint("Horizontal", 2, 3, 8, 3))
sketch3.addConstraint(Sketcher.Constraint("Horizontal", 6, 3, 12, 3))
sketch3.addConstraint(Sketcher.Constraint("Horizontal", 10, 3, 17, 3))
sketch3.addConstraint(Sketcher.Constraint("Horizontal", 14, 3, 21, 3))
sketch3.addConstraint(Sketcher.Constraint("Horizontal", 19, 3, 25, 3))
sketch3.addConstraint(Sketcher.Constraint("Horizontal", 23, 3, 29, 3))
sketch3.addConstraint(Sketcher.Constraint("Horizontal", 35, 3, 41, 3))
sketch3.addConstraint(Sketcher.Constraint("Horizontal", 39, 3, 45, 3))
sketch3.addConstraint(Sketcher.Constraint("Horizontal", 43, 3, 49, 3))
sketch3.addConstraint(Sketcher.Constraint("Horizontal", 47, 3, 52, 3))
sketch3.addConstraint(Sketcher.Constraint("Horizontal", 54, 3, 57, 3))
sketch3.addConstraint(Sketcher.Constraint("Horizontal", 51, 3, 61, 3))
sketch3.addConstraint(Sketcher.Constraint("Horizontal", 66, 3, 68, 3))
sketch3.addConstraint(Sketcher.Constraint("Horizontal", 74, 3, 76, 3))
sketch3.addConstraint(Sketcher.Constraint("Vertical", 0, 3, 4, 3))
sketch3.addConstraint(Sketcher.Constraint("Vertical", 2, 3, 6, 3))
sketch3.addConstraint(Sketcher.Constraint("Vertical", 8, 3, 12, 3))
sketch3.addConstraint(Sketcher.Constraint("Vertical", 10, 3, 14, 3))
sketch3.addConstraint(Sketcher.Constraint("Vertical", 17, 3, 21, 3))
sketch3.addConstraint(Sketcher.Constraint("Vertical", 19, 3, 23, 3))
sketch3.addConstraint(Sketcher.Constraint("Vertical", 25, 3, 29, 3))
sketch3.addConstraint(Sketcher.Constraint("Vertical", 27, 3, 31, 3))
sketch3.addConstraint(Sketcher.Constraint("Vertical", 4, 3, 33, 3))
sketch3.addConstraint(Sketcher.Constraint("Vertical", 6, 3, 35, 3))
sketch3.addConstraint(Sketcher.Constraint("Vertical", 33, 3, 37, 3))
sketch3.addConstraint(Sketcher.Constraint("Vertical", 35, 3, 39, 3))
sketch3.addConstraint(Sketcher.Constraint("Vertical", 12, 3, 41, 3))
sketch3.addConstraint(Sketcher.Constraint("Vertical", 14, 3, 43, 3))
sketch3.addConstraint(Sketcher.Constraint("Vertical", 41, 3, 45, 3))
sketch3.addConstraint(Sketcher.Constraint("Vertical", 43, 3, 47, 3))
sketch3.addConstraint(Sketcher.Constraint("Vertical", 23, 3, 49, 3))
sketch3.addConstraint(Sketcher.Constraint("Vertical", 21, 3, 51, 3))
sketch3.addConstraint(Sketcher.Constraint("Vertical", 29, 3, 52, 3))
sketch3.addConstraint(Sketcher.Constraint("Vertical", 31, 3, 54, 3))
sketch3.addConstraint(Sketcher.Constraint("Vertical", 49, 3, 57, 3))
sketch3.addConstraint(Sketcher.Constraint("Vertical", 51, 3, 59, 3))
sketch3.addConstraint(Sketcher.Constraint("Vertical", 52, 3, 61, 3))
sketch3.addConstraint(Sketcher.Constraint("Vertical", 54, 3, 63, 3))
sketch3.addConstraint(Sketcher.Constraint("Vertical", 63, 3, 64, 3))
sketch3.addConstraint(Sketcher.Constraint("Vertical", 61, 3, 66, 3))
sketch3.addConstraint(Sketcher.Constraint("Vertical", 57, 3, 68, 3))
sketch3.addConstraint(Sketcher.Constraint("Vertical", 59, 3, 70, 3))
sketch3.addConstraint(Sketcher.Constraint("Vertical", 64, 3, 72, 3))
sketch3.addConstraint(Sketcher.Constraint("Vertical", 66, 3, 74, 3))
sketch3.addConstraint(Sketcher.Constraint("Vertical", 68, 3, 76, 3))
sketch3.addConstraint(Sketcher.Constraint("Vertical", 70, 3, 78, 3))
sketch3.addConstraint(Sketcher.Constraint("Equal", 7, 9))
sketch3.addConstraint(Sketcher.Constraint("Equal", 15, 16))
sketch3.addConstraint(Sketcher.Constraint("Equal", 22, 24))
sketch3.addConstraint(Sketcher.Constraint("Radius", 0, Q("0.0885 in")))
sketch3.addConstraint(Sketcher.Constraint("DistanceX", 1, 1, 1, 2, Q("0.21 in")))
sketch3.addConstraint(Sketcher.Constraint("DistanceX", -1, 1, 0, 3, Q("0.8885 in")))
sketch3.addConstraint(Sketcher.Constraint("DistanceX", -1, 1, 8, 3, Q("1.8505 in")))
sketch3.addConstraint(Sketcher.Constraint("DistanceY", -1, 1, 33, 3, Q("2.1859 in")))
sketch3.addConstraint(Sketcher.Constraint("DistanceY", -1, 1, 37, 3, Q("2.8944 in")))
sketch3.addConstraint(Sketcher.Constraint("DistanceY", -1, 1, 64, 3, Q("4.6456 in")))
sketch3.addConstraint(Sketcher.Constraint("DistanceY", -1, 1, 72, 3, Q("3.9371 in")))
sketch3.addConstraint(Sketcher.Constraint("DistanceY", -1, 1, 0, 3, 162.478))
sketch3.addConstraint(Sketcher.Constraint("DistanceY", -1, 1, 4, 3, 144.4822))
sketch3.addConstraint(Sketcher.Constraint("DistanceX", -1, 1, 17, 3, 195.432))
sketch3.addConstraint(Sketcher.Constraint("DistanceX", -1, 1, 25, 3, 170.9973))
sketch3.setExpression("Constraints[189]", "Params.sketch3_width")
pocket2 = body.newObject("PartDesign::Pocket", "Pocket001")
pocket2.Profile = sketch3
pocket2.setExpression("Length", "Params.pocket2_length")

sketch4 = body.newObject("Sketcher::SketchObject", "Sketch003")
sketch4.AttachmentSupport = (doc.getObject("XY_Plane"), [""])
sketch4.MapMode = "FlatFace"
sketch4.AttachmentOffset = App.Placement(Vector(0, 0, 0.1181102 * 25.4), App.Rotation())
sketch4.addGeometry(Part.Circle(Vector(5.0419, 5.1689, 0), Vector(0, 0, 1), 1.7399), False)
sketch4.addGeometry(Part.Circle(Vector(212.9581, 5.1689, 0), Vector(0, 0, 1), 1.7399), False)
sketch4.addGeometry(Part.Circle(Vector(212.9581, 212.8311, 0), Vector(0, 0, 1), 1.7399), False)
sketch4.addGeometry(Part.Circle(Vector(5.0419, 212.8311, 0), Vector(0, 0, 1), 1.7399), False)
sketch4.addConstraint(Sketcher.Constraint("Equal", 0, 1))
sketch4.addConstraint(Sketcher.Constraint("Equal", 1, 2))
sketch4.addConstraint(Sketcher.Constraint("Equal", 2, 3))
sketch4.addConstraint(Sketcher.Constraint("Horizontal", 0, 3, 1, 3))
sketch4.addConstraint(Sketcher.Constraint("Horizontal", 2, 3, 3, 3))
sketch4.addConstraint(Sketcher.Constraint("Vertical", 1, 3, 2, 3))
sketch4.addConstraint(Sketcher.Constraint("Vertical", 0, 3, 3, 3))
sketch4.addConstraint(Sketcher.Constraint("Diameter", 0, Q("0.137 in")))
sketch4.addConstraint(Sketcher.Constraint("DistanceX", -1, 1, 0, 3, Q("0.1985 in")))
sketch4.addConstraint(Sketcher.Constraint("DistanceY", -1, 1, 0, 3, Q("0.2035 in")))
sketch4.addConstraint(Sketcher.Constraint("DistanceX", -1, 1, 1, 3, 212.958))
sketch4.addConstraint(Sketcher.Constraint("DistanceY", -1, 1, 2, 3, 212.831))
sketch4.setExpression("Constraints[7]", "Params.sketch4_diameter")
pocket3 = body.newObject("PartDesign::Pocket", "Pocket002")
pocket3.Profile = sketch4
pocket3.Type = "ThroughAll"

doc.recompute()
